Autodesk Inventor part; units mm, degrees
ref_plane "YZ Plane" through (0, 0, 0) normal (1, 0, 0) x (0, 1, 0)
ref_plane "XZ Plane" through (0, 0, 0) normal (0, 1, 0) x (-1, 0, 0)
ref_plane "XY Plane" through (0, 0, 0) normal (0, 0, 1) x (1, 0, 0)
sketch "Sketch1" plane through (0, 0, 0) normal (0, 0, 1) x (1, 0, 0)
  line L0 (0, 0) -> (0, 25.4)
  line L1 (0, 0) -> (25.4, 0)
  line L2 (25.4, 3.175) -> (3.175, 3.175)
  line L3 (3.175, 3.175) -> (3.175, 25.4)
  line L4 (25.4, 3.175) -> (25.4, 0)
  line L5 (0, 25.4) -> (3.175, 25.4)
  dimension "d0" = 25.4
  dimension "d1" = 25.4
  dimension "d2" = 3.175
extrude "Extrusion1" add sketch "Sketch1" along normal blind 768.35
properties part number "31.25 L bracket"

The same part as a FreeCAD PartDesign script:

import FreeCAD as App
import Part
import Sketcher
from FreeCAD import Vector
Q = App.Units.Quantity


def add_polygon(sketch, points):
    """Adds a closed chain of lines whose ends are joined by coincident constraints."""
    first, n = sketch.GeometryCount, len(points)
    for a, b in zip(points, points[1:] + points[:1]):
        sketch.addGeometry(Part.LineSegment(App.Vector(*a, 0), App.Vector(*b, 0)), False)
    for i in range(n):
        sketch.addConstraint(Sketcher.Constraint("Coincident", first + i, 2, first + (i + 1) % n, 1))

doc = App.newDocument("Part")
params = doc.addObject("Spreadsheet::Sheet", "Params")
for row, (alias, value) in enumerate([
    ("sketch1_width", "1 in"),
    ("sketch1_width2", "0.125 in"),
    ("pad1_length", "30.25 in"),
], start=1):
    params.set(f"A{row}", alias)
    params.set(f"B{row}", "=" + value)
    params.setAlias(f"B{row}", alias)

body = doc.addObject("PartDesign::Body", "Body")

# Sketch on XY plane
sketch1 = body.newObject("Sketcher::SketchObject", "Sketch")
sketch1.AttachmentSupport = (doc.getObject("XY_Plane"), [""])
sketch1.MapMode = "FlatFace"
add_polygon(sketch1, [(0, 25.4), (0, 0), (25.4, 0), (25.4, 3.175), (3.175, 3.175), (3.175, 25.4)])  # lines 0-5
sketch1.addConstraint([
    Sketcher.Constraint("Vertical", 0),
    Sketcher.Constraint("Horizontal", 1),
    Sketcher.Constraint("Vertical", 2),
    Sketcher.Constraint("Horizontal", 3),
    Sketcher.Constraint("Vertical", 4),
    Sketcher.Constraint("Horizontal", 5),
    Sketcher.Constraint("Coincident", 0, 2, -1, 1),
    Sketcher.Constraint("Equal", 1, 0),
    Sketcher.Constraint("Equal", 5, 2),
    Sketcher.Constraint("DistanceX", 1, 1, 1, 2, Q("1 in")),
    Sketcher.Constraint("DistanceX", 5, 2, 5, 1, Q("0.125 in")),
])
sketch1.setExpression("Constraints[15]", "Params.sketch1_width")
sketch1.setExpression("Constraints[16]", "Params.sketch1_width2")
pad1 = body.newObject("PartDesign::Pad", "Pad")
pad1.Profile = sketch1
pad1.setExpression("Length", "Params.pad1_length")

doc.recompute()
